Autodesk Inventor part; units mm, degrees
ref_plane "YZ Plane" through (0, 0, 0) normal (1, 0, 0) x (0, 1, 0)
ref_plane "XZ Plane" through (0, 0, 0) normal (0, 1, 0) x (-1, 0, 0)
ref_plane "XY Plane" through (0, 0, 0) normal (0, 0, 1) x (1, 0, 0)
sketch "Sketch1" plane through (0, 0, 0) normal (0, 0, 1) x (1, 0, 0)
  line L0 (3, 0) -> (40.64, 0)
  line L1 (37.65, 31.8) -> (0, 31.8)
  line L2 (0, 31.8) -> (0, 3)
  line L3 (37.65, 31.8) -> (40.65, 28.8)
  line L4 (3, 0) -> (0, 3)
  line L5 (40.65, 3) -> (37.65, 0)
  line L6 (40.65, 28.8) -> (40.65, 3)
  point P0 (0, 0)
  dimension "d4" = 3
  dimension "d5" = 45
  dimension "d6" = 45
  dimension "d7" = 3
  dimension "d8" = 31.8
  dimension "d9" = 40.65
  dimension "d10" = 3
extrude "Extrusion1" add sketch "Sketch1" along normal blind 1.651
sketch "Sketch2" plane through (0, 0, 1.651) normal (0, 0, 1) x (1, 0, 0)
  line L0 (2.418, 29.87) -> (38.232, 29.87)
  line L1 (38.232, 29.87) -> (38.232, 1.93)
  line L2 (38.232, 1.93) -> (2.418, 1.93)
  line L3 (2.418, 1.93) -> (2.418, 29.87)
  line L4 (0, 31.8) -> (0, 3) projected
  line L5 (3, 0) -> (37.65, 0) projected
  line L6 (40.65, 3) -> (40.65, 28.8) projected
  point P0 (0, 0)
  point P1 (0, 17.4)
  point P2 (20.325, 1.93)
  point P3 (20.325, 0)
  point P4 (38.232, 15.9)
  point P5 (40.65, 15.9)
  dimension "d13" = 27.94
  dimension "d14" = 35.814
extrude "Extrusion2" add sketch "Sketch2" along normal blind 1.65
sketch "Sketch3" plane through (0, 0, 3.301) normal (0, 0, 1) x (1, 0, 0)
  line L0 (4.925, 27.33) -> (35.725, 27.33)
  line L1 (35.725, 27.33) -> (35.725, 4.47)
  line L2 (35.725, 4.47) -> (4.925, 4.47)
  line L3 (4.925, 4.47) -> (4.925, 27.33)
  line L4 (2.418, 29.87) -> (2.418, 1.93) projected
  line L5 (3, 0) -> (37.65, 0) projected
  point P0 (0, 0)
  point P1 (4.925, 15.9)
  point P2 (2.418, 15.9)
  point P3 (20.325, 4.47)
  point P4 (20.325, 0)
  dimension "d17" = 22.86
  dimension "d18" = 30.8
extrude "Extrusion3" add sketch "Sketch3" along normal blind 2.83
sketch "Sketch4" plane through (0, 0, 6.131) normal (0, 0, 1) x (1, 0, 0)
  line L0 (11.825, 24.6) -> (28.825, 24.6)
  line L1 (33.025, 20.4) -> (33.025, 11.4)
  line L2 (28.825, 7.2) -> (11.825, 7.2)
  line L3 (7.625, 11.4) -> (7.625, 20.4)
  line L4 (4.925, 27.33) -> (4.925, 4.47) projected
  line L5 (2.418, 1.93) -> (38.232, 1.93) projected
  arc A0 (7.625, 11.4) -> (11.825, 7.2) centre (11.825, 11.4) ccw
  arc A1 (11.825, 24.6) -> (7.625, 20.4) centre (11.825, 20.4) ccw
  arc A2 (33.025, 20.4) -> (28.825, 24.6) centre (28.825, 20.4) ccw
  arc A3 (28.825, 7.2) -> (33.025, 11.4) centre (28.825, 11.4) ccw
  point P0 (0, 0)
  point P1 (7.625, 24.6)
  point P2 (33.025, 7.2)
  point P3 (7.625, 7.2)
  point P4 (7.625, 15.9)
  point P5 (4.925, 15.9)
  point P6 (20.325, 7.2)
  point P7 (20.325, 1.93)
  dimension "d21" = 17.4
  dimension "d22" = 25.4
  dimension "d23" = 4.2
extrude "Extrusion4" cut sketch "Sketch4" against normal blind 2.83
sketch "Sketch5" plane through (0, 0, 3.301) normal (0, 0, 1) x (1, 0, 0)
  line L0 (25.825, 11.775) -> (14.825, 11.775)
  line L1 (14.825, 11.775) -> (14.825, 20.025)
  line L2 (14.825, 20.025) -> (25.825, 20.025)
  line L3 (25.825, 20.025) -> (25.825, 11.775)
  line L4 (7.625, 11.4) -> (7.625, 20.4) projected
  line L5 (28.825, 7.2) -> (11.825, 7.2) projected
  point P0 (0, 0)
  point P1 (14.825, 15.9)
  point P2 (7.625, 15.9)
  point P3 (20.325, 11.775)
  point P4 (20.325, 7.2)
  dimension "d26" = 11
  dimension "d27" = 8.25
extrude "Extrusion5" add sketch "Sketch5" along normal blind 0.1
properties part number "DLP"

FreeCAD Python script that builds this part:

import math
import FreeCAD as App
import Part
import Sketcher
from FreeCAD import Vector

doc = App.newDocument("Part")
body = doc.addObject("PartDesign::Body", "Body")

sketch1 = doc.addObject("Sketcher::SketchObject", "Sketch")
body.addObject(sketch1)
sketch1.AttachmentSupport = (doc.XY_Plane, [""])
sketch1.MapMode = "FlatFace"
sketch1.addGeometry(Part.LineSegment(Vector(0, 3, 0), Vector(3, 0, 0)), False)
sketch1.addGeometry(Part.LineSegment(Vector(3, 0, 0), Vector(37.6, 0, 0)), False)
sketch1.addGeometry(Part.LineSegment(Vector(37.6, 0, 0), Vector(40.6, 3, 0)), False)
sketch1.addGeometry(Part.LineSegment(Vector(40.6, 3, 0), Vector(40.6, 28.8, 0)), False)
sketch1.addGeometry(Part.LineSegment(Vector(40.6, 28.8, 0), Vector(37.6, 31.8, 0)), False)
sketch1.addGeometry(Part.LineSegment(Vector(37.6, 31.8, 0), Vector(0, 31.8, 0)), False)
sketch1.addGeometry(Part.LineSegment(Vector(0, 31.8, 0), Vector(0, 3, 0)), False)
sketch1.addConstraint(Sketcher.Constraint("Coincident", 0, 2, 1, 1))
sketch1.addConstraint(Sketcher.Constraint("Coincident", 1, 2, 2, 1))
sketch1.addConstraint(Sketcher.Constraint("Coincident", 2, 2, 3, 1))
sketch1.addConstraint(Sketcher.Constraint("Coincident", 3, 2, 4, 1))
sketch1.addConstraint(Sketcher.Constraint("Coincident", 4, 2, 5, 1))
sketch1.addConstraint(Sketcher.Constraint("Coincident", 5, 2, 6, 1))
sketch1.addConstraint(Sketcher.Constraint("Coincident", 6, 2, 0, 1))
sketch1.addConstraint(Sketcher.Constraint("Horizontal", 1))
sketch1.addConstraint(Sketcher.Constraint("Vertical", 3))
sketch1.addConstraint(Sketcher.Constraint("Horizontal", 5))
sketch1.addConstraint(Sketcher.Constraint("Vertical", 6))
sketch1.addConstraint(Sketcher.Constraint("PointOnObject", 0, 2, -1))
sketch1.addConstraint(Sketcher.Constraint("PointOnObject", 5, 2, -2))
sketch1.addConstraint(Sketcher.Constraint("Perpendicular", 0, 2))
sketch1.addConstraint(Sketcher.Constraint("Perpendicular", 2, 4))
sketch1.addConstraint(Sketcher.Constraint("Horizontal", 2, 2, 6, 2))
sketch1.addConstraint(Sketcher.Constraint("Vertical", 1, 2, 4, 2))
sketch1.addConstraint(Sketcher.Constraint("Equal", 0, 2))
sketch1.addConstraint(Sketcher.Constraint("DistanceX", -1, 1, 0, 2, 3.0))
sketch1.addConstraint(Sketcher.Constraint("DistanceY", -1, 1, 4, 2, 31.8))
sketch1.addConstraint(Sketcher.Constraint("DistanceX", -1, 1, 2, 2, 40.65))
pad1 = doc.addObject("PartDesign::Pad", "Pad")
body.addObject(pad1)
pad1.Profile = sketch1
pad1.Length = 1.651

sketch2 = doc.addObject("Sketcher::SketchObject", "Sketch001")
body.addObject(sketch2)
sketch2.AttachmentSupport = (doc.XY_Plane, [""])
sketch2.MapMode = "FlatFace"
sketch2.AttachmentOffset = App.Placement(Vector(0, 0, 1.651), App.Rotation())
sketch2.addGeometry(Part.LineSegment(Vector(38, 30, 0), Vector(2, 30, 0)), False)
sketch2.addGeometry(Part.LineSegment(Vector(2, 30, 0), Vector(2, 2, 0)), False)
sketch2.addGeometry(Part.LineSegment(Vector(2, 2, 0), Vector(38, 2, 0)), False)
sketch2.addGeometry(Part.LineSegment(Vector(38, 2, 0), Vector(38, 30, 0)), False)
sketch2.addConstraint(Sketcher.Constraint("Coincident", 0, 2, 1, 1))
sketch2.addConstraint(Sketcher.Constraint("Coincident", 1, 2, 2, 1))
sketch2.addConstraint(Sketcher.Constraint("Coincident", 2, 2, 3, 1))
sketch2.addConstraint(Sketcher.Constraint("Coincident", 3, 2, 0, 1))
sketch2.addConstraint(Sketcher.Constraint("Horizontal", 0))
sketch2.addConstraint(Sketcher.Constraint("Vertical", 1))
sketch2.addConstraint(Sketcher.Constraint("Horizontal", 2))
sketch2.addConstraint(Sketcher.Constraint("Vertical", 3))
sketch2.addConstraint(Sketcher.Constraint("DistanceY", 1, 2, 1, 1, 27.94))
sketch2.addConstraint(Sketcher.Constraint("DistanceX", 0, 2, 0, 1, 35.814))
sketch2.addConstraint(Sketcher.Constraint("DistanceY", -1, 1, 0, 2, 29.87))
sketch2.addConstraint(Sketcher.Constraint("DistanceX", -1, 1, 0, 2, 2.418))
pad2 = doc.addObject("PartDesign::Pad", "Pad001")
body.addObject(pad2)
pad2.Profile = sketch2
pad2.Length = 1.65

sketch3 = doc.addObject("Sketcher::SketchObject", "Sketch002")
body.addObject(sketch3)
sketch3.AttachmentSupport = (doc.XY_Plane, [""])
sketch3.MapMode = "FlatFace"
sketch3.AttachmentOffset = App.Placement(Vector(0, 0, 3.301), App.Rotation())
sketch3.addGeometry(Part.LineSegment(Vector(36, 27, 0), Vector(5, 27, 0)), False)
sketch3.addGeometry(Part.LineSegment(Vector(5, 27, 0), Vector(5, 4, 0)), False)
sketch3.addGeometry(Part.LineSegment(Vector(5, 4, 0), Vector(36, 4, 0)), False)
sketch3.addGeometry(Part.LineSegment(Vector(36, 4, 0), Vector(36, 27, 0)), False)
sketch3.addConstraint(Sketcher.Constraint("Coincident", 0, 2, 1, 1))
sketch3.addConstraint(Sketcher.Constraint("Coincident", 1, 2, 2, 1))
sketch3.addConstraint(Sketcher.Constraint("Coincident", 2, 2, 3, 1))
sketch3.addConstraint(Sketcher.Constraint("Coincident", 3, 2, 0, 1))
sketch3.addConstraint(Sketcher.Constraint("Horizontal", 0))
sketch3.addConstraint(Sketcher.Constraint("Vertical", 1))
sketch3.addConstraint(Sketcher.Constraint("Horizontal", 2))
sketch3.addConstraint(Sketcher.Constraint("Vertical", 3))
sketch3.addConstraint(Sketcher.Constraint("DistanceX", 0, 2, 0, 1, 30.8))
sketch3.addConstraint(Sketcher.Constraint("DistanceY", 1, 2, 1, 1, 22.86))
sketch3.addConstraint(Sketcher.Constraint("DistanceY", -1, 1, 0, 2, 27.33))
sketch3.addConstraint(Sketcher.Constraint("DistanceX", -1, 1, 0, 2, 4.925))
pad3 = doc.addObject("PartDesign::Pad", "Pad002")
body.addObject(pad3)
pad3.Profile = sketch3
pad3.Length = 2.83

sketch4 = doc.addObject("Sketcher::SketchObject", "Sketch003")
body.addObject(sketch4)
sketch4.AttachmentSupport = (doc.XY_Plane, [""])
sketch4.MapMode = "FlatFace"
sketch4.AttachmentOffset = App.Placement(Vector(0, 0, 6.131), App.Rotation())
sketch4.addGeometry(Part.LineSegment(Vector(28.8, 24.6, 0), Vector(11.8, 24.6, 0)), False)
sketch4.addGeometry(Part.ArcOfCircle(Part.Circle(Vector(11.8, 20.4, 0), Vector(0, 0, 1), 4.2), math.radians(90), math.radians(180)), False)
sketch4.addGeometry(Part.LineSegment(Vector(7.6, 20.4, 0), Vector(7.6, 11.4, 0)), False)
sketch4.addGeometry(Part.ArcOfCircle(Part.Circle(Vector(11.8, 11.4, 0), Vector(0, 0, 1), 4.2), math.radians(180), math.radians(270)), False)
sketch4.addGeometry(Part.LineSegment(Vector(11.8, 7.2, 0), Vector(28.8, 7.2, 0)), False)
sketch4.addGeometry(Part.ArcOfCircle(Part.Circle(Vector(28.8, 11.4, 0), Vector(0, 0, 1), 4.2), math.radians(-90), math.radians(0)), False)
sketch4.addGeometry(Part.LineSegment(Vector(33, 11.4, 0), Vector(33, 20.4, 0)), False)
sketch4.addGeometry(Part.ArcOfCircle(Part.Circle(Vector(28.8, 20.4, 0), Vector(0, 0, 1), 4.2), math.radians(0), math.radians(90)), False)
sketch4.addConstraint(Sketcher.Constraint("Tangent", 0, 2, 1, 1))
sketch4.addConstraint(Sketcher.Constraint("Tangent", 1, 2, 2, 1))
sketch4.addConstraint(Sketcher.Constraint("Tangent", 2, 2, 3, 1))
sketch4.addConstraint(Sketcher.Constraint("Tangent", 3, 2, 4, 1))
sketch4.addConstraint(Sketcher.Constraint("Tangent", 4, 2, 5, 1))
sketch4.addConstraint(Sketcher.Constraint("Tangent", 5, 2, 6, 1))
sketch4.addConstraint(Sketcher.Constraint("Tangent", 6, 2, 7, 1))
sketch4.addConstraint(Sketcher.Constraint("Tangent", 7, 2, 0, 1))
sketch4.addConstraint(Sketcher.Constraint("Horizontal", 0))
sketch4.addConstraint(Sketcher.Constraint("Vertical", 2))
sketch4.addConstraint(Sketcher.Constraint("Horizontal", 4))
sketch4.addConstraint(Sketcher.Constraint("Vertical", 6))
sketch4.addConstraint(Sketcher.Constraint("Equal", 1, 3))
sketch4.addConstraint(Sketcher.Constraint("Equal", 3, 5))
sketch4.addConstraint(Sketcher.Constraint("Equal", 5, 7))
sketch4.addConstraint(Sketcher.Constraint("Radius", 1, 4.2))
sketch4.addConstraint(Sketcher.Constraint("DistanceY", 3, 2, 0, 2, 17.4))
sketch4.addConstraint(Sketcher.Constraint("DistanceX", 0, 2, 0, 1, 17.0))
sketch4.addConstraint(Sketcher.Constraint("DistanceY", -1, 1, 1, 3, 20.4))
sketch4.addConstraint(Sketcher.Constraint("DistanceX", -1, 1, 1, 3, 11.825))
pocket1 = doc.addObject("PartDesign::Pocket", "Pocket")
body.addObject(pocket1)
pocket1.Profile = sketch4
pocket1.Length = 2.83

sketch5 = doc.addObject("Sketcher::SketchObject", "Sketch004")
body.addObject(sketch5)
sketch5.AttachmentSupport = (doc.XY_Plane, [""])
sketch5.MapMode = "FlatFace"
sketch5.AttachmentOffset = App.Placement(Vector(0, 0, 3.301), App.Rotation())
sketch5.addGeometry(Part.LineSegment(Vector(15, 12, 0), Vector(26, 12, 0)), False)
sketch5.addGeometry(Part.LineSegment(Vector(26, 12, 0), Vector(26, 20, 0)), False)
sketch5.addGeometry(Part.LineSegment(Vector(26, 20, 0), Vector(15, 20, 0)), False)
sketch5.addGeometry(Part.LineSegment(Vector(15, 20, 0), Vector(15, 12, 0)), False)
sketch5.addConstraint(Sketcher.Constraint("Coincident", 0, 2, 1, 1))
sketch5.addConstraint(Sketcher.Constraint("Coincident", 1, 2, 2, 1))
sketch5.addConstraint(Sketcher.Constraint("Coincident", 2, 2, 3, 1))
sketch5.addConstraint(Sketcher.Constraint("Coincident", 3, 2, 0, 1))
sketch5.addConstraint(Sketcher.Constraint("Horizontal", 0))
sketch5.addConstraint(Sketcher.Constraint("Vertical", 1))
sketch5.addConstraint(Sketcher.Constraint("Horizontal", 2))
sketch5.addConstraint(Sketcher.Constraint("Vertical", 3))
sketch5.addConstraint(Sketcher.Constraint("DistanceX", 0, 1, 0, 2, 11.0))
sketch5.addConstraint(Sketcher.Constraint("DistanceY", 1, 1, 1, 2, 8.25))
sketch5.addConstraint(Sketcher.Constraint("DistanceX", -1, 1, 0, 2, 25.825))
sketch5.addConstraint(Sketcher.Constraint("DistanceY", -1, 1, 0, 2, 11.775))
pad4 = doc.addObject("PartDesign::Pad", "Pad003")
body.addObject(pad4)
pad4.Profile = sketch5
pad4.Length = 0.1

doc.recompute()
